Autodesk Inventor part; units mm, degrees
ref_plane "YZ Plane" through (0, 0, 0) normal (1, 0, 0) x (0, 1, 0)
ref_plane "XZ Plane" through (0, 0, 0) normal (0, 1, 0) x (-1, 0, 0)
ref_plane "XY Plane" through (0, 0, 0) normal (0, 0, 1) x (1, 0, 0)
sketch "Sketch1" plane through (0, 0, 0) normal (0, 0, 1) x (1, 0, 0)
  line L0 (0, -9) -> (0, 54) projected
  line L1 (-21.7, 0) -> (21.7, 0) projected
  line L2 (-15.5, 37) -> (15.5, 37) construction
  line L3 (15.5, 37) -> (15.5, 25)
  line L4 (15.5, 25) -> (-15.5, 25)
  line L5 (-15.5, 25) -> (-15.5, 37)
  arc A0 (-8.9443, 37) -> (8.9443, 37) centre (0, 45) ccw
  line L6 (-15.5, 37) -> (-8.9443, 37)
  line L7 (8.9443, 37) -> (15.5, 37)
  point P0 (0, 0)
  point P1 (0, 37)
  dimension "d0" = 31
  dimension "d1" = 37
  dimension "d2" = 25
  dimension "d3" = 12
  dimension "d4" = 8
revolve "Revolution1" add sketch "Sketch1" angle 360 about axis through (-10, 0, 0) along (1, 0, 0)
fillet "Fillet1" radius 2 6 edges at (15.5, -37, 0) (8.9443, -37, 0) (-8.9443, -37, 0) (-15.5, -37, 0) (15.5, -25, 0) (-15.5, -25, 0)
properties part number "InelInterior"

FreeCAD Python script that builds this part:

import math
import FreeCAD as App
import Part
import Sketcher

V = App.Vector


def edges_at(feature, points):
    """Names of the edges that pass closest to the given points."""
    edges = feature.Shape.Edges
    near = lambda p: min(range(len(edges)), key=lambda i: edges[i].distToShape(Part.Vertex(*p))[0])
    return sorted({f"Edge{near(p) + 1}" for p in points})

doc = App.newDocument("Part")
body = doc.addObject("PartDesign::Body", "Body")

# Sketch on XY plane
sketch1 = doc.addObject("Sketcher::SketchObject", "Sketch")
body.addObject(sketch1)
sketch1.AttachmentSupport = (doc.XY_Plane, [""])
sketch1.MapMode = "FlatFace"
sketch1.addGeometry([
    Part.LineSegment(V(-16, 25, 0), V(16, 25, 0)),  # 0
    Part.LineSegment(V(16, 25, 0), V(16, 37, 0)),  # 1
    Part.LineSegment(V(16, 37, 0), V(9, 37, 0)),  # 2
    Part.ArcOfCircle(Part.Circle(V(0, 45, 0), V(0, 0, 1), 12), math.radians(-138), math.radians(-42)),  # 3
    Part.LineSegment(V(-9, 37, 0), V(-16, 37, 0)),  # 4
    Part.LineSegment(V(-16, 37, 0), V(-16, 25, 0)),  # 5
], False)
sketch1.addConstraint([
    Sketcher.Constraint("Coincident", 0, 2, 1, 1),
    Sketcher.Constraint("Coincident", 1, 2, 2, 1),
    Sketcher.Constraint("Coincident", 2, 2, 3, 2),
    Sketcher.Constraint("Coincident", 3, 1, 4, 1),
    Sketcher.Constraint("Coincident", 4, 2, 5, 1),
    Sketcher.Constraint("Coincident", 5, 2, 0, 1),
    Sketcher.Constraint("Horizontal", 0),
    Sketcher.Constraint("Vertical", 1),
    Sketcher.Constraint("Horizontal", 2),
    Sketcher.Constraint("Horizontal", 4),
    Sketcher.Constraint("Vertical", 5),
    Sketcher.Constraint("Symmetric", 2, 2, 3, 1, -2),
    Sketcher.Constraint("Equal", 2, 4),
    Sketcher.Constraint("Radius", 3, 12.0),
    Sketcher.Constraint("DistanceX", 0, 1, 0, 2, 31.0),
    Sketcher.Constraint("DistanceY", 1, 1, 1, 2, 12.0),
    Sketcher.Constraint("DistanceY", -1, 1, 0, 2, 25.0),
    Sketcher.Constraint("DistanceY", 1, 2, 3, 3, 8.0),
])
revolution = doc.addObject("PartDesign::Revolution", "Revolution")
body.addObject(revolution)
revolution.Profile = sketch1
revolution.ReferenceAxis = (sketch1, ["H_Axis"])
revolution.Angle = 360
doc.recompute()

fillet = doc.addObject("PartDesign::Fillet", "Fillet")
body.addObject(fillet)
fillet.Base = (revolution, edges_at(revolution, [
    (15.5, -37, 0),
    (8.944, -37, 0),
    (-8.944, -37, 0),
    (-15.5, -37, 0),
    (15.5, -25, 0),
    (-15.5, -25, 0),
]))
fillet.Radius = 2

doc.recompute()
